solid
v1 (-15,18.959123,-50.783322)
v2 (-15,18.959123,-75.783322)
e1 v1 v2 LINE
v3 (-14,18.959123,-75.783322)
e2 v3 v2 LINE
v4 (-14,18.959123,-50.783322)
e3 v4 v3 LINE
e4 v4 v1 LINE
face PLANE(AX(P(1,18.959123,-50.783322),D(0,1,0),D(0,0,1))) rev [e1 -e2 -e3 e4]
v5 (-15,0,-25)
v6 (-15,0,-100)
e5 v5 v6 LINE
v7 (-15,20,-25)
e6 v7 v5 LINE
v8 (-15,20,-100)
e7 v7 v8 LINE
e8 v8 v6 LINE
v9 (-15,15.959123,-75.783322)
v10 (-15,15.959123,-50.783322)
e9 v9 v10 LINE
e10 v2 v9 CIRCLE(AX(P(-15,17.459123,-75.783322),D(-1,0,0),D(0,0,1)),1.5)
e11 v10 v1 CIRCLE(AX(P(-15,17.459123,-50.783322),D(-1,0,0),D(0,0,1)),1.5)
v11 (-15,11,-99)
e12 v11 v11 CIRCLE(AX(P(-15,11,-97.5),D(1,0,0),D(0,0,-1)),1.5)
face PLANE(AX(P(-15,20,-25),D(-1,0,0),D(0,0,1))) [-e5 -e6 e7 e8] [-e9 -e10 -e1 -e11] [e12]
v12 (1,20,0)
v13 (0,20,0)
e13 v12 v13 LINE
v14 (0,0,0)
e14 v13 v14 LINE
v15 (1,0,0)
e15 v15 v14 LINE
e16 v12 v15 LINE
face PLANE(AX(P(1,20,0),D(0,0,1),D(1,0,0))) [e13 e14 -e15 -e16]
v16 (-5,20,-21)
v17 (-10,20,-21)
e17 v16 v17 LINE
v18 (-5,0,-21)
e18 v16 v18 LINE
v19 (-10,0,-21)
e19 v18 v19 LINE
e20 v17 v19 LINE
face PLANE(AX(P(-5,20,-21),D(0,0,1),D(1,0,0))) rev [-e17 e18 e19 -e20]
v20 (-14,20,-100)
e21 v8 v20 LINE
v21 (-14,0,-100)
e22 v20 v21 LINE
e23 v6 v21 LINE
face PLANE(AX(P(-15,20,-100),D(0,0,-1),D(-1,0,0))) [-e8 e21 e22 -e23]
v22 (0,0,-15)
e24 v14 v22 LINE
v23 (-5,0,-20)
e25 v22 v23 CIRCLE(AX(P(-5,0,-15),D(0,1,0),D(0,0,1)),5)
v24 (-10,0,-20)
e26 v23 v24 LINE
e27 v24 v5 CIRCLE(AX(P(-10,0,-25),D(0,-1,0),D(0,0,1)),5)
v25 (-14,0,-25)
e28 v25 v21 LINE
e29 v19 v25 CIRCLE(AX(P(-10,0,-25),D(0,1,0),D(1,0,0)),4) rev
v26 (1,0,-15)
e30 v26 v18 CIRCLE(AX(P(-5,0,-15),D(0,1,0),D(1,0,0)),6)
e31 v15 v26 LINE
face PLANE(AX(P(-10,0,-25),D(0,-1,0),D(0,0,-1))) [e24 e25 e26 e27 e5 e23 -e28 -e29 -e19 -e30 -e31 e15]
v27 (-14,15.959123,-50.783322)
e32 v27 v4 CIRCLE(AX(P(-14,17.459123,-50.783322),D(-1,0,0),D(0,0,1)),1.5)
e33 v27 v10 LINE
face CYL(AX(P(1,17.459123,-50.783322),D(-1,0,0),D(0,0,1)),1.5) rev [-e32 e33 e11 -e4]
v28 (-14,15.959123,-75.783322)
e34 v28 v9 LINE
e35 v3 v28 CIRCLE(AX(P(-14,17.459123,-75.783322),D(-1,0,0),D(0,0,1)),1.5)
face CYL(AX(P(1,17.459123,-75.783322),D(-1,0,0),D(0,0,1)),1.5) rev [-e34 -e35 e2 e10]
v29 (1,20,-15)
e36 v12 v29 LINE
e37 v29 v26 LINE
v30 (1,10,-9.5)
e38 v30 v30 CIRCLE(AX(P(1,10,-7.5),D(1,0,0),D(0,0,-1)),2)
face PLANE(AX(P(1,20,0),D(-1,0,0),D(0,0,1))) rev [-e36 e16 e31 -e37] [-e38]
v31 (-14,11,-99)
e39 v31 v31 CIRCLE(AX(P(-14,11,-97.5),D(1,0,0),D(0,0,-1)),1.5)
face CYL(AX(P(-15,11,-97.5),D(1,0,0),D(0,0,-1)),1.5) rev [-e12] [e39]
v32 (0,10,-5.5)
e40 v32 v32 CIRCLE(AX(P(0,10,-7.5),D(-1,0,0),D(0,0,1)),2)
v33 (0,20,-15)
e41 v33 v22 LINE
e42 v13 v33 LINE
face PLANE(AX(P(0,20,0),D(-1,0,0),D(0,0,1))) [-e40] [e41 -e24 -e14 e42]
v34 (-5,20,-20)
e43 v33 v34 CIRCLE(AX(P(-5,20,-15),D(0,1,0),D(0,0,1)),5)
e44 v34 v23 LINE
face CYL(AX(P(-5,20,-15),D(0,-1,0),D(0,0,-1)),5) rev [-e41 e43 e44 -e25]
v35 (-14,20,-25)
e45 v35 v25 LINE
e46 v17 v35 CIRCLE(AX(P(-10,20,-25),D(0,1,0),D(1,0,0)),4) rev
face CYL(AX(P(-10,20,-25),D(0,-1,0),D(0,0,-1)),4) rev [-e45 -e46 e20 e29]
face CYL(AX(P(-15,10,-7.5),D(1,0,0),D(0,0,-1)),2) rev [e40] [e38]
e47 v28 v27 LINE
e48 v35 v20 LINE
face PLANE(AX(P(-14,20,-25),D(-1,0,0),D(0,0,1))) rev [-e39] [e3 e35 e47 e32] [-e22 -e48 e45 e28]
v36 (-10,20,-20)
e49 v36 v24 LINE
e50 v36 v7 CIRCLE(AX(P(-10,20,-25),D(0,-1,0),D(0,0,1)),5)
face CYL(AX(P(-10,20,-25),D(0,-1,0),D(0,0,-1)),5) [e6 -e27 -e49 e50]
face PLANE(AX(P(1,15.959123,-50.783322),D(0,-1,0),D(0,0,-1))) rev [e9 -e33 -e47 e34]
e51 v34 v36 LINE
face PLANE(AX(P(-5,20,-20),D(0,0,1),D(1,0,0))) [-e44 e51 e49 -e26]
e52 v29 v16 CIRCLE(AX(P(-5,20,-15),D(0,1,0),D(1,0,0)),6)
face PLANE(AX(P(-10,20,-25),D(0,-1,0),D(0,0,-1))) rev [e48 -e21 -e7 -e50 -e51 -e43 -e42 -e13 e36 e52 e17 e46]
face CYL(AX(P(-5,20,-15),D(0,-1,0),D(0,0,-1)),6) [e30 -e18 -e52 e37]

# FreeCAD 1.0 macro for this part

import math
import FreeCAD as App
import Part
import Sketcher

V = App.Vector

doc = App.newDocument("Part")
body = doc.addObject("PartDesign::Body", "Body")

# Sketch on XZ plane
sketch1 = body.newObject("Sketcher::SketchObject", "Sketch")
sketch1.AttachmentSupport = (doc.getObject("XZ_Plane"), [""])
sketch1.MapMode = "FlatFace"
sketch1.addGeometry(Part.LineSegment(V(0, -15, 0), V(0, 0, 0)), False)
sketch1.addGeometry(Part.LineSegment(V(0, 0, 0), V(1, 0, 0)), False)
sketch1.addGeometry(Part.LineSegment(V(1, 0, 0), V(1, -15, 0)), False)
sketch1.addGeometry(Part.ArcOfCircle(Part.Circle(V(-5, -15, 0), V(0, 0, 1), 6), math.radians(-90), math.radians(0)), False)
sketch1.addGeometry(Part.LineSegment(V(-5, -21, 0), V(-10, -21, 0)), False)
sketch1.addGeometry(Part.ArcOfCircle(Part.Circle(V(-10, -25, 0), V(0, 0, 1), 4), math.radians(90), math.radians(180)), False)
sketch1.addGeometry(Part.LineSegment(V(-14, -25, 0), V(-14, -100, 0)), False)
sketch1.addGeometry(Part.LineSegment(V(-14, -100, 0), V(-15, -100, 0)), False)
sketch1.addGeometry(Part.LineSegment(V(-15, -100, 0), V(-15, -25, 0)), False)
sketch1.addGeometry(Part.ArcOfCircle(Part.Circle(V(-10, -25, 0), V(0, 0, 1), 5), math.radians(90), math.radians(180)), False)
sketch1.addGeometry(Part.LineSegment(V(-10, -20, 0), V(-5, -20, 0)), False)
sketch1.addGeometry(Part.ArcOfCircle(Part.Circle(V(-5, -15, 0), V(0, 0, 1), 5), math.radians(-90), math.radians(0)), False)
sketch1.addConstraint(Sketcher.Constraint("Coincident", 0, 2, 1, 1))
sketch1.addConstraint(Sketcher.Constraint("Coincident", 1, 2, 2, 1))
sketch1.addConstraint(Sketcher.Constraint("Tangent", 2, 2, 3, 2))
sketch1.addConstraint(Sketcher.Constraint("Tangent", 3, 1, 4, 1))
sketch1.addConstraint(Sketcher.Constraint("Tangent", 4, 2, 5, 1))
sketch1.addConstraint(Sketcher.Constraint("Tangent", 5, 2, 6, 1))
sketch1.addConstraint(Sketcher.Constraint("Coincident", 6, 2, 7, 1))
sketch1.addConstraint(Sketcher.Constraint("Coincident", 7, 2, 8, 1))
sketch1.addConstraint(Sketcher.Constraint("Tangent", 8, 2, 9, 2))
sketch1.addConstraint(Sketcher.Constraint("Tangent", 9, 1, 10, 1))
sketch1.addConstraint(Sketcher.Constraint("Tangent", 10, 2, 11, 1))
sketch1.addConstraint(Sketcher.Constraint("Tangent", 11, 2, 0, 1))
sketch1.addConstraint(Sketcher.Constraint("Vertical", 0))
sketch1.addConstraint(Sketcher.Constraint("Horizontal", 1))
sketch1.addConstraint(Sketcher.Constraint("Vertical", 2))
sketch1.addConstraint(Sketcher.Constraint("Horizontal", 4))
sketch1.addConstraint(Sketcher.Constraint("Vertical", 6))
sketch1.addConstraint(Sketcher.Constraint("Horizontal", 7))
sketch1.addConstraint(Sketcher.Constraint("Vertical", 8))
sketch1.addConstraint(Sketcher.Constraint("Horizontal", 10))
sketch1.addConstraint(Sketcher.Constraint("Coincident", 0, 2, -1, 1))
sketch1.addConstraint(Sketcher.Constraint("Coincident", 9, 3, 5, 3))
sketch1.addConstraint(Sketcher.Constraint("Coincident", 11, 3, 3, 3))
sketch1.addConstraint(Sketcher.Constraint("Equal", 9, 11))
sketch1.addConstraint(Sketcher.Constraint("Radius", 3, 6.0))
sketch1.addConstraint(Sketcher.Constraint("Radius", 5, 4.0))
sketch1.addConstraint(Sketcher.Constraint("DistanceX", 4, 2, 4, 1, 5.0))
sketch1.addConstraint(Sketcher.Constraint("DistanceY", 0, 1, 0, 2, 15.0))
sketch1.addConstraint(Sketcher.Constraint("DistanceY", 6, 2, 6, 1, 75.0))
pad1 = body.newObject("PartDesign::Pad", "Pad")
pad1.Profile = sketch1
pad1.Length = 20
pad1.Reversed = True

# Sketch on YZ plane
sketch2 = body.newObject("Sketcher::SketchObject", "Sketch001")
sketch2.AttachmentSupport = (doc.getObject("YZ_Plane"), [""])
sketch2.MapMode = "FlatFace"
sketch2.AttachmentOffset = App.Placement(V(0, 0, 1), App.Rotation())
sketch2.addGeometry(Part.Circle(V(10, -7.5, 0), V(0, 0, 1), 2), False)
sketch2.addConstraint(Sketcher.Constraint("Diameter", 0, 4.0))
sketch2.addConstraint(Sketcher.Constraint("DistanceX", -1, 1, 0, 3, 10.0))
sketch2.addConstraint(Sketcher.Constraint("DistanceY", 0, 3, -1, 1, 7.5))
pocket1 = body.newObject("PartDesign::Pocket", "Pocket")
pocket1.Profile = sketch2
pocket1.Type = "ThroughAll"

# Sketch on YZ plane
sketch3 = body.newObject("Sketcher::SketchObject", "Sketch002")
sketch3.AttachmentSupport = (doc.getObject("YZ_Plane"), [""])
sketch3.MapMode = "FlatFace"
sketch3.AttachmentOffset = App.Placement(V(0, 0, -14), App.Rotation())
sketch3.addGeometry(Part.Circle(V(11, -97.5, 0), V(0, 0, 1), 1.5), False)
sketch3.addConstraint(Sketcher.Constraint("Diameter", 0, 3.0))
sketch3.addConstraint(Sketcher.Constraint("DistanceX", -1, 1, 0, 3, 11.0))
sketch3.addConstraint(Sketcher.Constraint("DistanceY", 0, 3, -1, 1, 97.5))
pocket2 = body.newObject("PartDesign::Pocket", "Pocket001")
pocket2.Profile = sketch3
pocket2.Type = "ThroughAll"

# Sketch on YZ plane
sketch4 = body.newObject("Sketcher::SketchObject", "Sketch003")
sketch4.AttachmentSupport = (doc.getObject("YZ_Plane"), [""])
sketch4.MapMode = "FlatFace"
sketch4.AttachmentOffset = App.Placement(V(0, 0, -15), App.Rotation())
sketch4.addGeometry(Part.LineSegment(V(19, -50.8, 0), V(19, -75.8, 0)), False)
sketch4.addGeometry(Part.ArcOfCircle(Part.Circle(V(17.5, -75.8, 0), V(0, 0, 1), 1.5), math.radians(180), math.radians(360)), False)
sketch4.addGeometry(Part.LineSegment(V(16, -75.8, 0), V(16, -50.8, 0)), False)
sketch4.addGeometry(Part.ArcOfCircle(Part.Circle(V(17.5, -50.8, 0), V(0, 0, 1), 1.5), math.radians(0), math.radians(180)), False)
sketch4.addConstraint(Sketcher.Constraint("Tangent", 0, 2, 1, 2))
sketch4.addConstraint(Sketcher.Constraint("Tangent", 1, 1, 2, 1))
sketch4.addConstraint(Sketcher.Constraint("Tangent", 2, 2, 3, 2))
sketch4.addConstraint(Sketcher.Constraint("Tangent", 3, 1, 0, 1))
sketch4.addConstraint(Sketcher.Constraint("Vertical", 0))
sketch4.addConstraint(Sketcher.Constraint("Vertical", 2))
sketch4.addConstraint(Sketcher.Constraint("Radius", 1, 1.5))
sketch4.addConstraint(Sketcher.Constraint("DistanceY", 0, 2, 0, 1, 25.0))
sketch4.addConstraint(Sketcher.Constraint("DistanceY", 1, 3, -1, 1, 75.783322))
sketch4.addConstraint(Sketcher.Constraint("DistanceX", -1, 1, 1, 3, 17.459123))
pocket3 = body.newObject("PartDesign::Pocket", "Pocket002")
pocket3.Profile = sketch4
pocket3.Type = "ThroughAll"
pocket3.Reversed = True

doc.recompute()
